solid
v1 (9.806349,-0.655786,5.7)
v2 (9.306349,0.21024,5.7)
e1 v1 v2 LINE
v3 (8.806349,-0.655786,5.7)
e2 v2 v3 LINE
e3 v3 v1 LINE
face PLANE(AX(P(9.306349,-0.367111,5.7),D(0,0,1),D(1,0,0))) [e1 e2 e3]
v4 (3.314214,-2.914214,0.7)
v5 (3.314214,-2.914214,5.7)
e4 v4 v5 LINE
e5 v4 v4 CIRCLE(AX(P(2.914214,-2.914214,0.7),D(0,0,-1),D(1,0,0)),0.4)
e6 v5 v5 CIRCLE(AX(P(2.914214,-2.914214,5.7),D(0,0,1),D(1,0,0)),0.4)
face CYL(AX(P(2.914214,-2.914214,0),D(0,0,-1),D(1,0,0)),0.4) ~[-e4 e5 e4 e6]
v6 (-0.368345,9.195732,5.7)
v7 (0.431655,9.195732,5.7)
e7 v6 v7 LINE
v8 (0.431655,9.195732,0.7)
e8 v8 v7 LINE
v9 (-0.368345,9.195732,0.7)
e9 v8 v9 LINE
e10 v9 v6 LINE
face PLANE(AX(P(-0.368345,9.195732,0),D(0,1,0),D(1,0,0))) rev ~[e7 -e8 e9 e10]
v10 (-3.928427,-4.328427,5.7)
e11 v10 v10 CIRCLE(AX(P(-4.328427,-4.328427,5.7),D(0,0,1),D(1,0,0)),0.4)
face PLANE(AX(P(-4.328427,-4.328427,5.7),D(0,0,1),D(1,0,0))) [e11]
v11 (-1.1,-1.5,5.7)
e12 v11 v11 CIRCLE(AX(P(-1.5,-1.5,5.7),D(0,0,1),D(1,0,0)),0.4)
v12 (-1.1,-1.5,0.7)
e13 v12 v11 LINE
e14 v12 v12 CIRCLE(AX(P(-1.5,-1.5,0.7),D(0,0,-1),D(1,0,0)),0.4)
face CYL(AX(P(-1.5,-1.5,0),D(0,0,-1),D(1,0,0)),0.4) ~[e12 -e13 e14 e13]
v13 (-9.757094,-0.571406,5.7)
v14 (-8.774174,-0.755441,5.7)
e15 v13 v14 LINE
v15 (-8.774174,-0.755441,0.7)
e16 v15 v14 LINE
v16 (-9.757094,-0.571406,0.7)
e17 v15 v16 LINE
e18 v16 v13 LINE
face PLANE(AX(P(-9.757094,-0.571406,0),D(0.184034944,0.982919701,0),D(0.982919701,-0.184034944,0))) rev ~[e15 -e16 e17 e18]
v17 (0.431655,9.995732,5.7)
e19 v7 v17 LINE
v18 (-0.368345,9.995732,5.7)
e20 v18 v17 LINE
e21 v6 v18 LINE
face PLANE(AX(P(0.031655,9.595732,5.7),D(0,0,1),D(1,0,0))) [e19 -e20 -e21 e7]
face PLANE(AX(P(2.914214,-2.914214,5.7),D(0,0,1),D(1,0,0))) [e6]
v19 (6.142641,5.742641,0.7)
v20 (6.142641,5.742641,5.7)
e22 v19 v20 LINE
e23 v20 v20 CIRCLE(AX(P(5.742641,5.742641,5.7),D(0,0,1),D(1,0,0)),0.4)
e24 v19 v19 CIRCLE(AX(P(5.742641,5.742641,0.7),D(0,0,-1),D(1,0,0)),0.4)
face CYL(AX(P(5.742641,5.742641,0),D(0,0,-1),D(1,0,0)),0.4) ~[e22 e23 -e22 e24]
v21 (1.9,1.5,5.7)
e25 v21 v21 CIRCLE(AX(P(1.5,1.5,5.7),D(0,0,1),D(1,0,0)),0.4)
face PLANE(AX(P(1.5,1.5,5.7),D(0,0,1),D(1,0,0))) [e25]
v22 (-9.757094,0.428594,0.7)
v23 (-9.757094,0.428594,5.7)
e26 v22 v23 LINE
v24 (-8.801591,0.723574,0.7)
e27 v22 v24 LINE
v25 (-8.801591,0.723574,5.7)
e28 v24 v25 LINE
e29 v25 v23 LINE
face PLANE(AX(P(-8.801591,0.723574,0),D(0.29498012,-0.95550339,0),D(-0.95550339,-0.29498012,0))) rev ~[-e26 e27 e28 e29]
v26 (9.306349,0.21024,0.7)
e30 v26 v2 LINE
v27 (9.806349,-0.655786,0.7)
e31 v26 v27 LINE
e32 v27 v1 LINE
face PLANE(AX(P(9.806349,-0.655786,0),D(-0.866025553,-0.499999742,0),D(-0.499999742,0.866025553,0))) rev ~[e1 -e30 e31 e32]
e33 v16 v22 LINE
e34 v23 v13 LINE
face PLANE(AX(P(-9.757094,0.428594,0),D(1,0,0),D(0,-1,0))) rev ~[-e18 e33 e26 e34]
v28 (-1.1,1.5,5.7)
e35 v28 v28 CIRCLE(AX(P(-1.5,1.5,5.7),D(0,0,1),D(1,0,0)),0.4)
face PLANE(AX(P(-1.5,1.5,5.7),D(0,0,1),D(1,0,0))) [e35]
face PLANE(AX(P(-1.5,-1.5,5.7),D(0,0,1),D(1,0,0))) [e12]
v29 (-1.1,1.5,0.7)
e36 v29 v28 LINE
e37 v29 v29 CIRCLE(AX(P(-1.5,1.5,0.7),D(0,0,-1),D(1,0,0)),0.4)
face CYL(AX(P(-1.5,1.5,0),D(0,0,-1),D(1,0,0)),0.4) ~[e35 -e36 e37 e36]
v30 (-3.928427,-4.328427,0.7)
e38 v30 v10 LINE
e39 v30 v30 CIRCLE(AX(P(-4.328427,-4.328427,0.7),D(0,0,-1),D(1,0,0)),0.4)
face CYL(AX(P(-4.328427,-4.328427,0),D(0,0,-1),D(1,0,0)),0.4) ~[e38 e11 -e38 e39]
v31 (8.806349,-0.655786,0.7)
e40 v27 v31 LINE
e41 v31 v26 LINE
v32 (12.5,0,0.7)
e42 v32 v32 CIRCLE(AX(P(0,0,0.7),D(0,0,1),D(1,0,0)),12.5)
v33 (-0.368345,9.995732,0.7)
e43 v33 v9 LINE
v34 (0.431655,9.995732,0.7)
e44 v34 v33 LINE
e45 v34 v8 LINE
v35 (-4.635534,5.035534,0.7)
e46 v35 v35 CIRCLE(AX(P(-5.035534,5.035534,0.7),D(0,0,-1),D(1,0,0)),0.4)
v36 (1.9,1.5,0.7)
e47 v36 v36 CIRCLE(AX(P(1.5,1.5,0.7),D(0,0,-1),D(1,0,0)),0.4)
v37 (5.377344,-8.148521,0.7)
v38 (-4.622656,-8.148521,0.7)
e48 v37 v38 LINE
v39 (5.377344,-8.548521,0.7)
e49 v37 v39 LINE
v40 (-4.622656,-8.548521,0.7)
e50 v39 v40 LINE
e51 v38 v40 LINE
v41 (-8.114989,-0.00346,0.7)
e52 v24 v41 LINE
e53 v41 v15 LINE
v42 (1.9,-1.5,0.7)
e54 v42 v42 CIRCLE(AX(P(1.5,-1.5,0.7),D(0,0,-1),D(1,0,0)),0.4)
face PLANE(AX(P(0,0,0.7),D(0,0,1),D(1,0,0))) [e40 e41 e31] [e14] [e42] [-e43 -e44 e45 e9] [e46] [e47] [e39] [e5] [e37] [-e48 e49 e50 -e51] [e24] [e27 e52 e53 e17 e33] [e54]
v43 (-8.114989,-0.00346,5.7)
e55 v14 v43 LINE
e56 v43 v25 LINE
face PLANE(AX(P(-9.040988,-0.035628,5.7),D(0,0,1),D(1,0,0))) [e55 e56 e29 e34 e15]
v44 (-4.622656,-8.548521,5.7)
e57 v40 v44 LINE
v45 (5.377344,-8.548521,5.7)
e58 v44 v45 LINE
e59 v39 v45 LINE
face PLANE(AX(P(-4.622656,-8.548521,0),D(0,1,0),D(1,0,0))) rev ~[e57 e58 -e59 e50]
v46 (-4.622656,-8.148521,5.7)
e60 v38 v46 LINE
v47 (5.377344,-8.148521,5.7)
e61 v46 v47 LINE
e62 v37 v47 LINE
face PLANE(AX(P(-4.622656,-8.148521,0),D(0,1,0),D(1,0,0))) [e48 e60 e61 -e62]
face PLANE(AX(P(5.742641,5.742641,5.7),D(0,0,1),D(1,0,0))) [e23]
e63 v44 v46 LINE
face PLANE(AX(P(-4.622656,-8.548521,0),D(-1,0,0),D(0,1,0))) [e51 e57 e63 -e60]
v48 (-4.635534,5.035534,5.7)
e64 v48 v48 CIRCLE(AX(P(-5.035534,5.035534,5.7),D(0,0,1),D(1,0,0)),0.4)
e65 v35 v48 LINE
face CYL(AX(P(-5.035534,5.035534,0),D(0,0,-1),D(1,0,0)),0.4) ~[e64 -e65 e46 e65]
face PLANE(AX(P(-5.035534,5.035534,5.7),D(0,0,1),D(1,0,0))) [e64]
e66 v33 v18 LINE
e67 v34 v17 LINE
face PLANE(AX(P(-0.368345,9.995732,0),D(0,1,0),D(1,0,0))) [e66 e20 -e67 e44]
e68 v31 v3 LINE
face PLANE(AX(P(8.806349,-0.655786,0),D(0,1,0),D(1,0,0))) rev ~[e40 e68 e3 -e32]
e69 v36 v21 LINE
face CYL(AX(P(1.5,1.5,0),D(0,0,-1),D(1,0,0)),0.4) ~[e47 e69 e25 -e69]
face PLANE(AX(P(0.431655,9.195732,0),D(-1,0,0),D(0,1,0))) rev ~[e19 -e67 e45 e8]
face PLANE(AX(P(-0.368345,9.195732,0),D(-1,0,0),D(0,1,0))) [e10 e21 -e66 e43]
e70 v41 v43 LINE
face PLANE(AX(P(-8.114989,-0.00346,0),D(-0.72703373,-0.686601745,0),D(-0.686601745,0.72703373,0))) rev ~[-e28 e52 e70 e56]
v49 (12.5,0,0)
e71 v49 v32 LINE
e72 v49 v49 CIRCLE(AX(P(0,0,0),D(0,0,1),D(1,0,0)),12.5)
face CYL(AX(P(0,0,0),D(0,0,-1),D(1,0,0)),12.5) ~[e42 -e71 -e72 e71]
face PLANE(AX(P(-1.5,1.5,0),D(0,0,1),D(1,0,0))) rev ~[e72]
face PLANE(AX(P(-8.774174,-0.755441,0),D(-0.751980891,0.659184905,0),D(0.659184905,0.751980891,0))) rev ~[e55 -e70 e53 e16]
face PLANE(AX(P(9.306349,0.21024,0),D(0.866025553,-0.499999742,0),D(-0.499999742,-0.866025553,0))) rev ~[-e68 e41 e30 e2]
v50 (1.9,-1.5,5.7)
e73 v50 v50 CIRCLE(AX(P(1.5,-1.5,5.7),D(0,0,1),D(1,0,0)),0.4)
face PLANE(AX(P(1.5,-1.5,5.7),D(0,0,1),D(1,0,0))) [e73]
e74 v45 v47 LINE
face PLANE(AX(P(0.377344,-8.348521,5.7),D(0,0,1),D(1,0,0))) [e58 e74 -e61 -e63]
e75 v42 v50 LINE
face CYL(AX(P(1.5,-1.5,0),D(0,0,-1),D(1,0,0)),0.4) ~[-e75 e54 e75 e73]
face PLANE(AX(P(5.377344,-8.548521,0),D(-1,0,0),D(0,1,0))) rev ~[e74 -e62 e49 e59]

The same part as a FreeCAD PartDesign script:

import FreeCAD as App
import Part
import Sketcher
from FreeCAD import Vector
Q = App.Units.Quantity


def add_polygon(sketch, points):
    """Adds a closed chain of lines whose ends are joined by coincident constraints."""
    first, n = sketch.GeometryCount, len(points)
    for a, b in zip(points, points[1:] + points[:1]):
        sketch.addGeometry(Part.LineSegment(App.Vector(*a, 0), App.Vector(*b, 0)), False)
    for i in range(n):
        sketch.addConstraint(Sketcher.Constraint("Coincident", first + i, 2, first + (i + 1) % n, 1))

doc = App.newDocument("Part")
body = doc.addObject("PartDesign::Body", "Body")

# Sketch on XY plane
sketch1 = body.newObject("Sketcher::SketchObject", "Sketch")
sketch1.AttachmentSupport = (doc.getObject("XY_Plane"), [""])
sketch1.MapMode = "FlatFace"
sketch1.addGeometry(Part.Circle(Vector(0, 0, 0), Vector(0, 0, 1), 12.5), False)
sketch1.addConstraint(Sketcher.Constraint("Coincident", 0, 3, -1, 1))
sketch1.addConstraint(Sketcher.Constraint("Diameter", 0, 25.0))
pad1 = body.newObject("PartDesign::Pad", "Pad")
pad1.Profile = sketch1
pad1.Length = 0.7

# Sketch on XY plane
sketch2 = body.newObject("Sketcher::SketchObject", "Sketch001")
sketch2.AttachmentSupport = (doc.getObject("XY_Plane"), [""])
sketch2.MapMode = "FlatFace"
sketch2.addGeometry(Part.Circle(Vector(-1.5, 1.5, 0), Vector(0, 0, 1), 0.4), False)  # 0
sketch2.addGeometry(Part.Circle(Vector(-1.5, -1.5, 0), Vector(0, 0, 1), 0.4), False)  # 1
sketch2.addGeometry(Part.Circle(Vector(1.5, -1.5, 0), Vector(0, 0, 1), 0.4), False)  # 2
sketch2.addGeometry(Part.Circle(Vector(1.5, 1.5, 0), Vector(0, 0, 1), 0.4), False)  # 3
sketch2.addGeometry(Part.Circle(Vector(2.914214, -2.914214, 0), Vector(0, 0, 1), 0.4), False)  # 4
sketch2.addGeometry(Part.Circle(Vector(5.742641, 5.742641, 0), Vector(0, 0, 1), 0.4), False)  # 5
sketch2.addGeometry(Part.Circle(Vector(-5.035534, 5.035534, 0), Vector(0, 0, 1), 0.4), False)  # 6
sketch2.addGeometry(Part.Circle(Vector(-4.328427, -4.328427, 0), Vector(0, 0, 1), 0.4), False)  # 7
add_polygon(sketch2, [(-0.368345, 9.995732), (-0.368345, 9.195732), (0.431655, 9.195732), (0.431655, 9.995732)])  # lines 8-11
add_polygon(sketch2, [(-8.801591, 0.723574), (-9.757094, 0.428594), (-9.757094, -0.571406), (-8.774174, -0.755441), (-8.114989, -0.00346)])  # lines 12-16
add_polygon(sketch2, [(9.806349, -0.655786), (9.306349, 0.21024), (8.806349, -0.655786)])  # lines 17-19
add_polygon(sketch2, [(-4.622656, -8.148521), (-4.622656, -8.548521), (5.377344, -8.548521), (5.377344, -8.148521)])  # lines 20-23
sketch2.addConstraint(Sketcher.Constraint("Vertical", 8))
sketch2.addConstraint(Sketcher.Constraint("Horizontal", 9))
sketch2.addConstraint(Sketcher.Constraint("Vertical", 10))
sketch2.addConstraint(Sketcher.Constraint("Horizontal", 11))
sketch2.addConstraint(Sketcher.Constraint("Vertical", 13))
sketch2.addConstraint(Sketcher.Constraint("Horizontal", 19))
sketch2.addConstraint(Sketcher.Constraint("Vertical", 20))
sketch2.addConstraint(Sketcher.Constraint("Horizontal", 21))
sketch2.addConstraint(Sketcher.Constraint("Vertical", 22))
sketch2.addConstraint(Sketcher.Constraint("Horizontal", 23))
sketch2.addConstraint(Sketcher.Constraint("Equal", 0, 1))
sketch2.addConstraint(Sketcher.Constraint("Equal", 1, 2))
sketch2.addConstraint(Sketcher.Constraint("Equal", 2, 3))
sketch2.addConstraint(Sketcher.Constraint("Equal", 3, 4))
sketch2.addConstraint(Sketcher.Constraint("Equal", 4, 5))
sketch2.addConstraint(Sketcher.Constraint("Equal", 5, 6))
sketch2.addConstraint(Sketcher.Constraint("Equal", 6, 7))
sketch2.addConstraint(Sketcher.Constraint("Symmetric", 0, 3, 2, 3, -1, 1))
sketch2.addConstraint(Sketcher.Constraint("Symmetric", 1, 3, 3, 3, -1, 1))
sketch2.addConstraint(Sketcher.Constraint("Symmetric", 1, 3, 2, 3, -2))
sketch2.addConstraint(Sketcher.Constraint("Equal", 11, 8))
sketch2.addConstraint(Sketcher.Constraint("Equal", 19, 13))
sketch2.addConstraint(Sketcher.Constraint("Equal", 12, 14))
sketch2.addConstraint(Sketcher.Constraint("Equal", 14, 15))
sketch2.addConstraint(Sketcher.Constraint("Equal", 15, 16))
sketch2.addConstraint(Sketcher.Constraint("Equal", 16, 17))
sketch2.addConstraint(Sketcher.Constraint("Equal", 17, 18))
sketch2.addConstraint(Sketcher.Constraint("Diameter", 0, 0.8))
sketch2.addConstraint(Sketcher.Constraint("DistanceX", 19, 1, 19, 2, 1.0))
sketch2.addConstraint(Sketcher.Constraint("DistanceX", 21, 1, 21, 2, 10.0))
sketch2.addConstraint(Sketcher.Constraint("Angle", 17, Q("119.999983 deg")))
sketch2.addConstraint(Sketcher.Constraint("DistanceX", 9, 1, 9, 2, 0.8))
sketch2.addConstraint(Sketcher.Constraint("DistanceY", 20, 2, 20, 1, 0.4))
sketch2.addConstraint(Sketcher.Constraint("DistanceY", 1, 3, 0, 3, 3.0))
sketch2.addConstraint(Sketcher.Constraint("DistanceX", 1, 3, 2, 3, 3.0))
sketch2.addConstraint(Sketcher.Constraint("DistanceY", 17, 2, 5, 3, 5.532401))
sketch2.addConstraint(Sketcher.Constraint("DistanceX", -1, 1, 5, 3, 5.742641))
sketch2.addConstraint(Sketcher.Constraint("DistanceY", -1, 1, 5, 3, 5.742641))
sketch2.addConstraint(Sketcher.Constraint("DistanceY", 14, 2, -1, 1, 0.755441))
sketch2.addConstraint(Sketcher.Constraint("DistanceX", 15, 2, -1, 1, 8.114989))
sketch2.addConstraint(Sketcher.Constraint("DistanceY", 15, 2, -1, 1, 0.00346))
sketch2.addConstraint(Sketcher.Constraint("DistanceX", 16, 2, -1, 1, 8.801591))
sketch2.addConstraint(Sketcher.Constraint("DistanceX", -1, 1, 17, 2, 9.306349))
sketch2.addConstraint(Sketcher.Constraint("DistanceY", 20, 2, -1, 1, 8.548521))
sketch2.addConstraint(Sketcher.Constraint("DistanceX", 7, 3, 4, 3, 7.242641))
sketch2.addConstraint(Sketcher.Constraint("DistanceX", 6, 3, 8, 2, 4.667189))
sketch2.addConstraint(Sketcher.Constraint("DistanceY", 5, 3, 8, 2, 3.453091))
sketch2.addConstraint(Sketcher.Constraint("DistanceX", 12, 2, 6, 3, 4.72156))
sketch2.addConstraint(Sketcher.Constraint("DistanceY", 12, 2, 6, 3, 4.60694))
sketch2.addConstraint(Sketcher.Constraint("DistanceY", 7, 3, 12, 2, 4.757021))
sketch2.addConstraint(Sketcher.Constraint("DistanceX", 15, 2, 7, 3, 3.786562))
sketch2.addConstraint(Sketcher.Constraint("DistanceX", 20, 2, 7, 3, 0.294229))
sketch2.addConstraint(Sketcher.Constraint("DistanceY", 4, 3, -1, 1, 2.914214))
pad2 = body.newObject("PartDesign::Pad", "Pad001")
pad2.Profile = sketch2
pad2.Length = 5.7

doc.recompute()
